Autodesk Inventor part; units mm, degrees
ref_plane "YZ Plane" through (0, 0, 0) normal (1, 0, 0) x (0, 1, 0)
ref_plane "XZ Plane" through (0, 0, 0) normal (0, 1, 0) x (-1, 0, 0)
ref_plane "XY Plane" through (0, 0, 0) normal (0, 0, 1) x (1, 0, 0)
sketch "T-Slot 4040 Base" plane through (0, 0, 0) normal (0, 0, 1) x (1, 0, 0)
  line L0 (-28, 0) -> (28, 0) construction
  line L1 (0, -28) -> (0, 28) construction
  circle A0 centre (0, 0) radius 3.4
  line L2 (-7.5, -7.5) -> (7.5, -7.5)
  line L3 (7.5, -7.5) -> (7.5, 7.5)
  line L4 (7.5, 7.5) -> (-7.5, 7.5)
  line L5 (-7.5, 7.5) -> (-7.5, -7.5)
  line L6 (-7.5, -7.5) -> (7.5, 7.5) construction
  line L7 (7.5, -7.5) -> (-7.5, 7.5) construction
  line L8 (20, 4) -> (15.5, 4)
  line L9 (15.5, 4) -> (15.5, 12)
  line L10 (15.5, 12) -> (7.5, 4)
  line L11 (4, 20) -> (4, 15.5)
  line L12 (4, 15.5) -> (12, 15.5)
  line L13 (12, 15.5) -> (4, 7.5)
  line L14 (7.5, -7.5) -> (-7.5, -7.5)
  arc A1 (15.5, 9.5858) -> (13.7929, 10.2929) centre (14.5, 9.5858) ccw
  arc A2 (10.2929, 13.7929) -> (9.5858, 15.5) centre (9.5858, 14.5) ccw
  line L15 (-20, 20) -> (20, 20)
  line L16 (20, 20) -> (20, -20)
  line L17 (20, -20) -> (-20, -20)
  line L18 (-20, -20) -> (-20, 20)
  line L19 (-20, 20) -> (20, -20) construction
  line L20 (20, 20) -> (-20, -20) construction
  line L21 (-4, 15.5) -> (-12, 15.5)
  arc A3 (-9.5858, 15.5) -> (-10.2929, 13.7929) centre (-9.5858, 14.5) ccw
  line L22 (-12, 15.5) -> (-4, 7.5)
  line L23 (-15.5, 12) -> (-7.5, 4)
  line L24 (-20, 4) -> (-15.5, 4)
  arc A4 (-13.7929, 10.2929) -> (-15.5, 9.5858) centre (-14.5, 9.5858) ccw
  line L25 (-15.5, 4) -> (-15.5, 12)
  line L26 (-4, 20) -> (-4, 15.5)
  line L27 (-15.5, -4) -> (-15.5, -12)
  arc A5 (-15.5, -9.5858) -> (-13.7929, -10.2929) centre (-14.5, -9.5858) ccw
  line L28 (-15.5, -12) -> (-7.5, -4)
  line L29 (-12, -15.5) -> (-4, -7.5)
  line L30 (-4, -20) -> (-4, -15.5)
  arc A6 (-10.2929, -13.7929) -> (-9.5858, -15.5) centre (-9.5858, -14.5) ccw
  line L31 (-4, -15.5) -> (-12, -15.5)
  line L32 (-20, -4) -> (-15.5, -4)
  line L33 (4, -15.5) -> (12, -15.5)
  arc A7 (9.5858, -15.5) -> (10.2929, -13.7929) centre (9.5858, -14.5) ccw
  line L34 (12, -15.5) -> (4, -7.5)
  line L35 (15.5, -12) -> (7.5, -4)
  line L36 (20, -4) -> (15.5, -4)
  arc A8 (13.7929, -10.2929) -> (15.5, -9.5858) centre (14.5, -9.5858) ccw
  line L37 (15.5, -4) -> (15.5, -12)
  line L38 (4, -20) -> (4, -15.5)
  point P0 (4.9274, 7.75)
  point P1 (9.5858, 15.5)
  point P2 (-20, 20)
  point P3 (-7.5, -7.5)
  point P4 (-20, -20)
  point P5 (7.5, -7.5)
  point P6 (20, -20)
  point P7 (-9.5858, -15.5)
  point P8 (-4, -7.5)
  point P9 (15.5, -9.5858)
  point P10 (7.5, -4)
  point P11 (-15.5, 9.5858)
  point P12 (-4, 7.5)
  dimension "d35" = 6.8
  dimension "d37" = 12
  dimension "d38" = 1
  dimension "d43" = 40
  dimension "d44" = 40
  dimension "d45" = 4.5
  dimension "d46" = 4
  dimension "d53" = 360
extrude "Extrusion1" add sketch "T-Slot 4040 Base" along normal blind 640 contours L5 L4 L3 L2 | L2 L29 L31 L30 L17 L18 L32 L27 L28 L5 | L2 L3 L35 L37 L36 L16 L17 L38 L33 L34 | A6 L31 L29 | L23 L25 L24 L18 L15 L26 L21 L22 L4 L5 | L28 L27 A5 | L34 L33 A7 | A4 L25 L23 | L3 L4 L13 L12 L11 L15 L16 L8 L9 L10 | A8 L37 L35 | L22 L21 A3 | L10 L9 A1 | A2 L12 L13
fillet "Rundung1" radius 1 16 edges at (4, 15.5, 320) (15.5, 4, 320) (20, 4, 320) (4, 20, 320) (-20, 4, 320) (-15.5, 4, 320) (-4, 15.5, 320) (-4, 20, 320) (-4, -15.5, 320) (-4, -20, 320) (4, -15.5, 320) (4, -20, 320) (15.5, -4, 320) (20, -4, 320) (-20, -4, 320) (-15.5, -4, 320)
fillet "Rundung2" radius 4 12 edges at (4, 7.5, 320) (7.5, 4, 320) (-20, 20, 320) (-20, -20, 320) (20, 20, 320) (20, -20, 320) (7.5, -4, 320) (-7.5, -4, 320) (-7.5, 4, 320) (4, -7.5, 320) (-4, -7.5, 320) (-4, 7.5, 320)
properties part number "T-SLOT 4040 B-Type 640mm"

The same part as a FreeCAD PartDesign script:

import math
import FreeCAD as App
import Part
import Sketcher

V = App.Vector
Q = App.Units.Quantity


def edges_at(feature, points):
    """Names of the edges that pass closest to the given points."""
    edges = feature.Shape.Edges
    near = lambda p: min(range(len(edges)), key=lambda i: edges[i].distToShape(Part.Vertex(*p))[0])
    return sorted({f"Edge{near(p) + 1}" for p in points})

doc = App.newDocument("Part")
params = doc.addObject("Spreadsheet::Sheet", "Params")
for row, (alias, value) in enumerate([
    ("sketch1_radius", "1 mm"),
    ("sketch1_diameter", "6.8 mm"),
    ("sketch1_width", "4.5 mm"),
    ("sketch1_width2", "16 mm"),
    ("pad1_length", "640 mm"),
    ("fillet_radius", "1 mm"),
    ("fillet2_radius", "4 mm"),
], start=1):
    params.set(f"A{row}", alias)
    params.set(f"B{row}", "=" + value)
    params.setAlias(f"B{row}", alias)

body = doc.addObject("PartDesign::Body", "Body")

sketch1 = body.newObject("Sketcher::SketchObject", "Sketch")
sketch1.AttachmentSupport = (doc.getObject("XY_Plane"), [""])
sketch1.MapMode = "FlatFace"
sketch1.addGeometry(Part.LineSegment(V(-7.5, 4, 0), V(-7.5, -4, 0)), False)
sketch1.addGeometry(Part.LineSegment(V(-7.5, -4, 0), V(-13.8, -10.3, 0)), False)
sketch1.addGeometry(Part.ArcOfCircle(Part.Circle(V(-14.5, -9.6, 0), V(0, 0, 1), 1), math.radians(180), math.radians(315)), False)
sketch1.addGeometry(Part.LineSegment(V(-15.5, -9.6, 0), V(-15.5, -4, 0)), False)
sketch1.addGeometry(Part.LineSegment(V(-15.5, -4, 0), V(-20, -4, 0)), False)
sketch1.addGeometry(Part.LineSegment(V(-20, -4, 0), V(-20, -20, 0)), False)
sketch1.addGeometry(Part.LineSegment(V(-20, -20, 0), V(-4, -20, 0)), False)
sketch1.addGeometry(Part.LineSegment(V(-4, -20, 0), V(-4, -15.5, 0)), False)
sketch1.addGeometry(Part.LineSegment(V(-4, -15.5, 0), V(-9.6, -15.5, 0)), False)
sketch1.addGeometry(Part.ArcOfCircle(Part.Circle(V(-9.6, -14.5, 0), V(0, 0, 1), 1), math.radians(135), math.radians(270)), False)
sketch1.addGeometry(Part.LineSegment(V(-10.3, -13.8, 0), V(-4, -7.5, 0)), False)
sketch1.addGeometry(Part.LineSegment(V(-4, -7.5, 0), V(4, -7.5, 0)), False)
sketch1.addGeometry(Part.LineSegment(V(4, -7.5, 0), V(10.3, -13.8, 0)), False)
sketch1.addGeometry(Part.ArcOfCircle(Part.Circle(V(9.6, -14.5, 0), V(0, 0, 1), 1), math.radians(-90), math.radians(45)), False)
sketch1.addGeometry(Part.LineSegment(V(9.6, -15.5, 0), V(4, -15.5, 0)), False)
sketch1.addGeometry(Part.LineSegment(V(4, -15.5, 0), V(4, -20, 0)), False)
sketch1.addGeometry(Part.LineSegment(V(4, -20, 0), V(20, -20, 0)), False)
sketch1.addGeometry(Part.LineSegment(V(20, -20, 0), V(20, -4, 0)), False)
sketch1.addGeometry(Part.LineSegment(V(20, -4, 0), V(15.5, -4, 0)), False)
sketch1.addGeometry(Part.LineSegment(V(15.5, -4, 0), V(15.5, -9.6, 0)), False)
sketch1.addGeometry(Part.ArcOfCircle(Part.Circle(V(14.5, -9.6, 0), V(0, 0, 1), 1), math.radians(-135), math.radians(0)), False)
sketch1.addGeometry(Part.LineSegment(V(13.8, -10.3, 0), V(7.5, -4, 0)), False)
sketch1.addGeometry(Part.LineSegment(V(7.5, -4, 0), V(7.5, 4, 0)), False)
sketch1.addGeometry(Part.LineSegment(V(7.5, 4, 0), V(13.8, 10.3, 0)), False)
sketch1.addGeometry(Part.ArcOfCircle(Part.Circle(V(14.5, 9.6, 0), V(0, 0, 1), 1), math.radians(0), math.radians(135)), False)
sketch1.addGeometry(Part.LineSegment(V(15.5, 9.6, 0), V(15.5, 4, 0)), False)
sketch1.addGeometry(Part.LineSegment(V(15.5, 4, 0), V(20, 4, 0)), False)
sketch1.addGeometry(Part.LineSegment(V(20, 4, 0), V(20, 20, 0)), False)
sketch1.addGeometry(Part.LineSegment(V(20, 20, 0), V(4, 20, 0)), False)
sketch1.addGeometry(Part.LineSegment(V(4, 20, 0), V(4, 15.5, 0)), False)
sketch1.addGeometry(Part.LineSegment(V(4, 15.5, 0), V(9.6, 15.5, 0)), False)
sketch1.addGeometry(Part.ArcOfCircle(Part.Circle(V(9.6, 14.5, 0), V(0, 0, 1), 1), math.radians(-45), math.radians(90)), False)
sketch1.addGeometry(Part.LineSegment(V(10.3, 13.8, 0), V(4, 7.5, 0)), False)
sketch1.addGeometry(Part.LineSegment(V(4, 7.5, 0), V(-4, 7.5, 0)), False)
sketch1.addGeometry(Part.LineSegment(V(-4, 7.5, 0), V(-10.3, 13.8, 0)), False)
sketch1.addGeometry(Part.ArcOfCircle(Part.Circle(V(-9.6, 14.5, 0), V(0, 0, 1), 1), math.radians(90), math.radians(225)), False)
sketch1.addGeometry(Part.LineSegment(V(-9.6, 15.5, 0), V(-4, 15.5, 0)), False)
sketch1.addGeometry(Part.LineSegment(V(-4, 15.5, 0), V(-4, 20, 0)), False)
sketch1.addGeometry(Part.LineSegment(V(-4, 20, 0), V(-20, 20, 0)), False)
sketch1.addGeometry(Part.LineSegment(V(-20, 20, 0), V(-20, 4, 0)), False)
sketch1.addGeometry(Part.LineSegment(V(-20, 4, 0), V(-15.5, 4, 0)), False)
sketch1.addGeometry(Part.LineSegment(V(-15.5, 4, 0), V(-15.5, 9.6, 0)), False)
sketch1.addGeometry(Part.ArcOfCircle(Part.Circle(V(-14.5, 9.6, 0), V(0, 0, 1), 1), math.radians(45), math.radians(180)), False)
sketch1.addGeometry(Part.LineSegment(V(-13.8, 10.3, 0), V(-7.5, 4, 0)), False)
sketch1.addGeometry(Part.Circle(V(0, 0, 0), V(0, 0, 1), 3.4), False)
sketch1.addConstraint(Sketcher.Constraint("Coincident", 0, 2, 1, 1))
sketch1.addConstraint(Sketcher.Constraint("Tangent", 1, 2, 2, 2))
sketch1.addConstraint(Sketcher.Constraint("Tangent", 2, 1, 3, 1))
sketch1.addConstraint(Sketcher.Constraint("Coincident", 3, 2, 4, 1))
sketch1.addConstraint(Sketcher.Constraint("Coincident", 4, 2, 5, 1))
sketch1.addConstraint(Sketcher.Constraint("Coincident", 5, 2, 6, 1))
sketch1.addConstraint(Sketcher.Constraint("Coincident", 6, 2, 7, 1))
sketch1.addConstraint(Sketcher.Constraint("Coincident", 7, 2, 8, 1))
sketch1.addConstraint(Sketcher.Constraint("Tangent", 8, 2, 9, 2))
sketch1.addConstraint(Sketcher.Constraint("Tangent", 9, 1, 10, 1))
sketch1.addConstraint(Sketcher.Constraint("Coincident", 10, 2, 11, 1))
sketch1.addConstraint(Sketcher.Constraint("Coincident", 11, 2, 12, 1))
sketch1.addConstraint(Sketcher.Constraint("Tangent", 12, 2, 13, 2))
sketch1.addConstraint(Sketcher.Constraint("Tangent", 13, 1, 14, 1))
sketch1.addConstraint(Sketcher.Constraint("Coincident", 14, 2, 15, 1))
sketch1.addConstraint(Sketcher.Constraint("Coincident", 15, 2, 16, 1))
sketch1.addConstraint(Sketcher.Constraint("Coincident", 16, 2, 17, 1))
sketch1.addConstraint(Sketcher.Constraint("Coincident", 17, 2, 18, 1))
sketch1.addConstraint(Sketcher.Constraint("Coincident", 18, 2, 19, 1))
sketch1.addConstraint(Sketcher.Constraint("Tangent", 19, 2, 20, 2))
sketch1.addConstraint(Sketcher.Constraint("Tangent", 20, 1, 21, 1))
sketch1.addConstraint(Sketcher.Constraint("Coincident", 21, 2, 22, 1))
sketch1.addConstraint(Sketcher.Constraint("Coincident", 22, 2, 23, 1))
sketch1.addConstraint(Sketcher.Constraint("Tangent", 23, 2, 24, 2))
sketch1.addConstraint(Sketcher.Constraint("Tangent", 24, 1, 25, 1))
sketch1.addConstraint(Sketcher.Constraint("Coincident", 25, 2, 26, 1))
sketch1.addConstraint(Sketcher.Constraint("Coincident", 26, 2, 27, 1))
sketch1.addConstraint(Sketcher.Constraint("Coincident", 27, 2, 28, 1))
sketch1.addConstraint(Sketcher.Constraint("Coincident", 28, 2, 29, 1))
sketch1.addConstraint(Sketcher.Constraint("Coincident", 29, 2, 30, 1))
sketch1.addConstraint(Sketcher.Constraint("Tangent", 30, 2, 31, 2))
sketch1.addConstraint(Sketcher.Constraint("Tangent", 31, 1, 32, 1))
sketch1.addConstraint(Sketcher.Constraint("Coincident", 32, 2, 33, 1))
sketch1.addConstraint(Sketcher.Constraint("Coincident", 33, 2, 34, 1))
sketch1.addConstraint(Sketcher.Constraint("Tangent", 34, 2, 35, 2))
sketch1.addConstraint(Sketcher.Constraint("Tangent", 35, 1, 36, 1))
sketch1.addConstraint(Sketcher.Constraint("Coincident", 36, 2, 37, 1))
sketch1.addConstraint(Sketcher.Constraint("Coincident", 37, 2, 38, 1))
sketch1.addConstraint(Sketcher.Constraint("Coincident", 38, 2, 39, 1))
sketch1.addConstraint(Sketcher.Constraint("Coincident", 39, 2, 40, 1))
sketch1.addConstraint(Sketcher.Constraint("Coincident", 40, 2, 41, 1))
sketch1.addConstraint(Sketcher.Constraint("Tangent", 41, 2, 42, 2))
sketch1.addConstraint(Sketcher.Constraint("Tangent", 42, 1, 43, 1))
sketch1.addConstraint(Sketcher.Constraint("Coincident", 43, 2, 0, 1))
sketch1.addConstraint(Sketcher.Constraint("Vertical", 0))
sketch1.addConstraint(Sketcher.Constraint("Vertical", 3))
sketch1.addConstraint(Sketcher.Constraint("Horizontal", 4))
sketch1.addConstraint(Sketcher.Constraint("Vertical", 5))
sketch1.addConstraint(Sketcher.Constraint("Horizontal", 6))
sketch1.addConstraint(Sketcher.Constraint("Vertical", 7))
sketch1.addConstraint(Sketcher.Constraint("Horizontal", 8))
sketch1.addConstraint(Sketcher.Constraint("Horizontal", 11))
sketch1.addConstraint(Sketcher.Constraint("Horizontal", 14))
sketch1.addConstraint(Sketcher.Constraint("Vertical", 15))
sketch1.addConstraint(Sketcher.Constraint("Horizontal", 16))
sketch1.addConstraint(Sketcher.Constraint("Vertical", 17))
sketch1.addConstraint(Sketcher.Constraint("Horizontal", 18))
sketch1.addConstraint(Sketcher.Constraint("Vertical", 19))
sketch1.addConstraint(Sketcher.Constraint("Vertical", 22))
sketch1.addConstraint(Sketcher.Constraint("Vertical", 25))
sketch1.addConstraint(Sketcher.Constraint("Horizontal", 26))
sketch1.addConstraint(Sketcher.Constraint("Vertical", 27))
sketch1.addConstraint(Sketcher.Constraint("Horizontal", 28))
sketch1.addConstraint(Sketcher.Constraint("Vertical", 29))
sketch1.addConstraint(Sketcher.Constraint("Horizontal", 30))
sketch1.addConstraint(Sketcher.Constraint("Horizontal", 33))
sketch1.addConstraint(Sketcher.Constraint("Horizontal", 36))
sketch1.addConstraint(Sketcher.Constraint("Vertical", 37))
sketch1.addConstraint(Sketcher.Constraint("Horizontal", 38))
sketch1.addConstraint(Sketcher.Constraint("Vertical", 39))
sketch1.addConstraint(Sketcher.Constraint("Horizontal", 40))
sketch1.addConstraint(Sketcher.Constraint("Vertical", 41))
sketch1.addConstraint(Sketcher.Constraint("Coincident", 44, 3, -1, 1))
sketch1.addConstraint(Sketcher.Constraint("Equal", 2, 9))
sketch1.addConstraint(Sketcher.Constraint("Equal", 9, 13))
sketch1.addConstraint(Sketcher.Constraint("Equal", 13, 20))
sketch1.addConstraint(Sketcher.Constraint("Equal", 20, 24))
sketch1.addConstraint(Sketcher.Constraint("Equal", 24, 31))
sketch1.addConstraint(Sketcher.Constraint("Equal", 31, 35))
sketch1.addConstraint(Sketcher.Constraint("Equal", 35, 42))
sketch1.addConstraint(Sketcher.Constraint("Symmetric", 2, 3, 24, 3, -1, 1))
sketch1.addConstraint(Sketcher.Constraint("Symmetric", 9, 3, 31, 3, -1, 1))
sketch1.addConstraint(Sketcher.Constraint("Symmetric", 13, 3, 35, 3, -1, 1))
sketch1.addConstraint(Sketcher.Constraint("Symmetric", 20, 3, 42, 3, -1, 1))
sketch1.addConstraint(Sketcher.Constraint("Symmetric", 0, 2, 22, 2, -1, 1))
sketch1.addConstraint(Sketcher.Constraint("Symmetric", 4, 2, 26, 2, -1, 1))
sketch1.addConstraint(Sketcher.Constraint("Symmetric", 6, 2, 28, 2, -1, 1))
sketch1.addConstraint(Sketcher.Constraint("Symmetric", 10, 2, 32, 2, -1, 1))
sketch1.addConstraint(Sketcher.Constraint("Symmetric", 15, 2, 37, 2, -1, 1))
sketch1.addConstraint(Sketcher.Constraint("Symmetric", 17, 2, 39, 2, -1, 1))
sketch1.addConstraint(Sketcher.Constraint("Symmetric", 9, 3, 13, 3, -2))
sketch1.addConstraint(Sketcher.Constraint("Symmetric", 2, 3, 20, 3, -2))
sketch1.addConstraint(Sketcher.Constraint("Symmetric", 6, 2, 15, 2, -2))
sketch1.addConstraint(Sketcher.Constraint("Symmetric", 4, 2, 17, 2, -2))
sketch1.addConstraint(Sketcher.Constraint("Parallel", 1, 10))
sketch1.addConstraint(Sketcher.Constraint("Perpendicular", 10, 12))
sketch1.addConstraint(Sketcher.Constraint("Parallel", 12, 21))
sketch1.addConstraint(Sketcher.Constraint("Perpendicular", 32, 34))
sketch1.addConstraint(Sketcher.Constraint("Parallel", 34, 43))
sketch1.addConstraint(Sketcher.Constraint("Horizontal", 0, 2, 3, 2))
sketch1.addConstraint(Sketcher.Constraint("Horizontal", 9, 1, 12, 2))
sketch1.addConstraint(Sketcher.Constraint("Vertical", 7, 2, 10, 2))
sketch1.addConstraint(Sketcher.Constraint("Equal", 33, 0))
sketch1.addConstraint(Sketcher.Constraint("Equal", 36, 3))
sketch1.addConstraint(Sketcher.Constraint("Equal", 38, 5))
sketch1.addConstraint(Sketcher.Constraint("Equal", 40, 7))
sketch1.addConstraint(Sketcher.Constraint("Radius", 2, Q("1 mm")))
sketch1.addConstraint(Sketcher.Constraint("Diameter", 44, Q("6.8 mm")))
sketch1.addConstraint(Sketcher.Constraint("DistanceX", 4, 2, 4, 1, Q("4.5 mm")))
sketch1.addConstraint(Sketcher.Constraint("DistanceY", 0, 2, -1, 1, Q("4 mm")))
sketch1.addConstraint(Sketcher.Constraint("DistanceX", 6, 1, 6, 2, Q("16 mm")))
sketch1.addConstraint(Sketcher.Constraint("DistanceX", 2, 3, 0, 2, Q("7 mm")))
sketch1.setExpression("Constraints[106]", "Params.sketch1_radius")
sketch1.setExpression("Constraints[107]", "Params.sketch1_diameter")
sketch1.setExpression("Constraints[108]", "Params.sketch1_width")
sketch1.setExpression("Constraints[110]", "Params.sketch1_width2")
pad1 = body.newObject("PartDesign::Pad", "Pad")
pad1.Profile = sketch1
pad1.setExpression("Length", "Params.pad1_length")
doc.recompute()

fillet = body.newObject("PartDesign::Fillet", "Fillet")
fillet.Base = (pad1, edges_at(pad1, [
    (4, 15.5, 320),
    (15.5, 4, 320),
    (20, 4, 320),
    (4, 20, 320),
    (-20, 4, 320),
    (-15.5, 4, 320),
    (-4, 15.5, 320),
    (-4, 20, 320),
    (-4, -15.5, 320),
    (-4, -20, 320),
    (4, -15.5, 320),
    (4, -20, 320),
    (15.5, -4, 320),
    (20, -4, 320),
    (-20, -4, 320),
    (-15.5, -4, 320),
]))
fillet.setExpression("Radius", "Params.fillet_radius")
doc.recompute()

fillet2 = body.newObject("PartDesign::Fillet", "Fillet001")
fillet2.Base = (fillet, edges_at(fillet, [
    (4, 7.5, 320),
    (7.5, 4, 320),
    (-20, 20, 320),
    (-20, -20, 320),
    (20, 20, 320),
    (20, -20, 320),
    (7.5, -4, 320),
    (-7.5, -4, 320),
    (-7.5, 4, 320),
    (4, -7.5, 320),
    (-4, -7.5, 320),
    (-4, 7.5, 320),
]))
fillet2.setExpression("Radius", "Params.fillet2_radius")

doc.recompute()
